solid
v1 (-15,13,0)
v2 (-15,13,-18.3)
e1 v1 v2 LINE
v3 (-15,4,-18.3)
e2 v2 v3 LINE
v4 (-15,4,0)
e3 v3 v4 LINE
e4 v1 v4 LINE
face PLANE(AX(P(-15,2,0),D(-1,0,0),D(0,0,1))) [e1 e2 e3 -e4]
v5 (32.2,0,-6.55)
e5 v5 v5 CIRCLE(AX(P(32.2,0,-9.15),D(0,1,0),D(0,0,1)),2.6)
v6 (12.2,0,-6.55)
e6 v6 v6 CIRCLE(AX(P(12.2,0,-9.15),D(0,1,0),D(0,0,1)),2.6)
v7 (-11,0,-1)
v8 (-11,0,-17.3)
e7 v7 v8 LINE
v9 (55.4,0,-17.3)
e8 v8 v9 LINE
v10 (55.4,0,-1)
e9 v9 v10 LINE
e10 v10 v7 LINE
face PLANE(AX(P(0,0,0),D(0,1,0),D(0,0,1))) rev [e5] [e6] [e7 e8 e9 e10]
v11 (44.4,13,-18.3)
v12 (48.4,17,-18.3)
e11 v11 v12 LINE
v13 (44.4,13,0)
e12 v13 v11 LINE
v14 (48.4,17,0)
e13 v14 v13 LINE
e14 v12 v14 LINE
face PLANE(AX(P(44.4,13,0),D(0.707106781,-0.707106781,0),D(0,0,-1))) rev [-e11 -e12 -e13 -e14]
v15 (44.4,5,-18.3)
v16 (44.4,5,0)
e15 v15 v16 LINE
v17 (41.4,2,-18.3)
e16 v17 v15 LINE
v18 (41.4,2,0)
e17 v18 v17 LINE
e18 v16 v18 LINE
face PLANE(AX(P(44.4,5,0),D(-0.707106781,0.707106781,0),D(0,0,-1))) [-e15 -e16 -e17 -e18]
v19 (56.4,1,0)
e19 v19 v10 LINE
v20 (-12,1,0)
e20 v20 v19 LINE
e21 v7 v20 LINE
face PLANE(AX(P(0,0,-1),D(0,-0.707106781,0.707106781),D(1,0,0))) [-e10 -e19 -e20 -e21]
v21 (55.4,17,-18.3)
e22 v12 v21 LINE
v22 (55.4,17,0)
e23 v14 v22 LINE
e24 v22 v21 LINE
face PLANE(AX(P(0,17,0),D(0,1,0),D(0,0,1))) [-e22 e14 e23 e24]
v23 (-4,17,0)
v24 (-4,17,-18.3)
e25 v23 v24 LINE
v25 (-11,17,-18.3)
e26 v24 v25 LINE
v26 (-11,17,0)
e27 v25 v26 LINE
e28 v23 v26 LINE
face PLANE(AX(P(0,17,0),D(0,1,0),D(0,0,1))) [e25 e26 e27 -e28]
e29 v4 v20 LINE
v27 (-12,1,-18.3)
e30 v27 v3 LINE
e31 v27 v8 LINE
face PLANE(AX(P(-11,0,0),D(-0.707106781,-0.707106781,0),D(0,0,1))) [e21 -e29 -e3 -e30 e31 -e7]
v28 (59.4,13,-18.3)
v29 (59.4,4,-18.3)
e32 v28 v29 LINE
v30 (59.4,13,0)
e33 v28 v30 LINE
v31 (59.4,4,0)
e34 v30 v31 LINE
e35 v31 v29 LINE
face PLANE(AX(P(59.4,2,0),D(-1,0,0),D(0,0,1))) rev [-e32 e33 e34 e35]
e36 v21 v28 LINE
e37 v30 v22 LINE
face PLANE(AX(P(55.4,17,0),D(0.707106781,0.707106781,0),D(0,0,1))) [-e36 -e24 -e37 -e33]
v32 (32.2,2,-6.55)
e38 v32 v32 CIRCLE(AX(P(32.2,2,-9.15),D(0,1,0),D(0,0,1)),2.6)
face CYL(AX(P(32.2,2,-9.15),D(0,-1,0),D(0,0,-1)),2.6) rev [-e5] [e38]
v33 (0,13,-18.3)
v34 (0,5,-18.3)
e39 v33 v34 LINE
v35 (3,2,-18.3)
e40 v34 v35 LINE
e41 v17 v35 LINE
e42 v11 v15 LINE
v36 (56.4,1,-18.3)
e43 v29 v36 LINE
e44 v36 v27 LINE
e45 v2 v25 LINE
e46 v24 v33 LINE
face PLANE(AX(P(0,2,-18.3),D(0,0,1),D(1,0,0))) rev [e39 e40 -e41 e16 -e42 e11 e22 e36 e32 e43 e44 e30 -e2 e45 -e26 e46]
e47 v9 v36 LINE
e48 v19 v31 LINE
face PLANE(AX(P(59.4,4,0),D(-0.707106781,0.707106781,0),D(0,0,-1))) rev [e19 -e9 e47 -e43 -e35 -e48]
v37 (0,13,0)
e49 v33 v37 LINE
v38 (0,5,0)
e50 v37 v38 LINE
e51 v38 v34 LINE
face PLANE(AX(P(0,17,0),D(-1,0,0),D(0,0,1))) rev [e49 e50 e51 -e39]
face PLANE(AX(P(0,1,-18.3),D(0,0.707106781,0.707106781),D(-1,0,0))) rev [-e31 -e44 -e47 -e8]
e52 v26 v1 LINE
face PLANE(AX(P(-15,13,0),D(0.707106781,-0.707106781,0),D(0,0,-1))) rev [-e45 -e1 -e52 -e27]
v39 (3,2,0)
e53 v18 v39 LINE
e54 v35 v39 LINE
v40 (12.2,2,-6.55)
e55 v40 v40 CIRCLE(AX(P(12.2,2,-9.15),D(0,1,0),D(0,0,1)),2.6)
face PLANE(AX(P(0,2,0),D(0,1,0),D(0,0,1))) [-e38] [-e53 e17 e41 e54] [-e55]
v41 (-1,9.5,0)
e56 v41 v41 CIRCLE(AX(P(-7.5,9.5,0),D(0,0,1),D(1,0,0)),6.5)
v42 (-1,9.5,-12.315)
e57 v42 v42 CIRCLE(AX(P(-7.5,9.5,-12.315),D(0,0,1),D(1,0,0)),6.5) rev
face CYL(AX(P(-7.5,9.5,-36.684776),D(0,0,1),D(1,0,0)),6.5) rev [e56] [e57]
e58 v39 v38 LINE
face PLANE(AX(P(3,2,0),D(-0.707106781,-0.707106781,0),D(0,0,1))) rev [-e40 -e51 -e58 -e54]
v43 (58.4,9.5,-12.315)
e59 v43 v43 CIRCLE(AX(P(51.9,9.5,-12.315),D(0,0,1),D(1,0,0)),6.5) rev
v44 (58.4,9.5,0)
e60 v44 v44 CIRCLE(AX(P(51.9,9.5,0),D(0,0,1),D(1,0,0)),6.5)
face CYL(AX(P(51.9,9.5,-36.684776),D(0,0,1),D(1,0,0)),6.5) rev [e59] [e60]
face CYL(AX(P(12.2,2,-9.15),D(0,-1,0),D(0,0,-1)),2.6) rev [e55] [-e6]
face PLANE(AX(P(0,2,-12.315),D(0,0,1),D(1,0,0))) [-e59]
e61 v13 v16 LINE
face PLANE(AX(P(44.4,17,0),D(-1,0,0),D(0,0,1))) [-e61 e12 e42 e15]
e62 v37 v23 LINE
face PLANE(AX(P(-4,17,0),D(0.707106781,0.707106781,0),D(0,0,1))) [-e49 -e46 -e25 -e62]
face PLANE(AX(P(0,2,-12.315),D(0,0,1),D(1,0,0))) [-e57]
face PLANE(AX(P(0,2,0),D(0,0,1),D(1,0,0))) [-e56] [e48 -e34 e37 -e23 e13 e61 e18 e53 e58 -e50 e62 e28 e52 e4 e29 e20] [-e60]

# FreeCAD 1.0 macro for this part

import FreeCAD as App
import Part
import Sketcher

V = App.Vector


def edges_at(feature, points):
    """Names of the edges that pass closest to the given points."""
    edges = feature.Shape.Edges
    near = lambda p: min(range(len(edges)), key=lambda i: edges[i].distToShape(Part.Vertex(*p))[0])
    return sorted({f"Edge{near(p) + 1}" for p in points})

doc = App.newDocument("Part")
body = doc.addObject("PartDesign::Body", "Body")

# Sketch on XZ plane
sketch1 = doc.addObject("Sketcher::SketchObject", "Sketch")
body.addObject(sketch1)
sketch1.AttachmentSupport = (doc.XZ_Plane, [""])
sketch1.MapMode = "FlatFace"
sketch1.addGeometry(Part.LineSegment(V(-15, -18.3, 0), V(-15, 0, 0)), False)
sketch1.addGeometry(Part.LineSegment(V(-15, 0, 0), V(59.4, 0, 0)), False)
sketch1.addGeometry(Part.LineSegment(V(59.4, 0, 0), V(59.4, -18.3, 0)), False)
sketch1.addGeometry(Part.LineSegment(V(59.4, -18.3, 0), V(-15, -18.3, 0)), False)
sketch1.addGeometry(Part.Circle(V(32.2, -9.2, 0), V(0, 0, 1), 2.6), False)
sketch1.addGeometry(Part.Circle(V(12.2, -9.2, 0), V(0, 0, 1), 2.6), False)
sketch1.addConstraint(Sketcher.Constraint("Coincident", 0, 2, 1, 1))
sketch1.addConstraint(Sketcher.Constraint("Coincident", 1, 2, 2, 1))
sketch1.addConstraint(Sketcher.Constraint("Coincident", 2, 2, 3, 1))
sketch1.addConstraint(Sketcher.Constraint("Coincident", 3, 2, 0, 1))
sketch1.addConstraint(Sketcher.Constraint("Vertical", 0))
sketch1.addConstraint(Sketcher.Constraint("Horizontal", 1))
sketch1.addConstraint(Sketcher.Constraint("Vertical", 2))
sketch1.addConstraint(Sketcher.Constraint("Horizontal", 3))
sketch1.addConstraint(Sketcher.Constraint("Equal", 4, 5))
sketch1.addConstraint(Sketcher.Constraint("PointOnObject", 0, 2, -1))
sketch1.addConstraint(Sketcher.Constraint("Horizontal", 4, 3, 5, 3))
sketch1.addConstraint(Sketcher.Constraint("Diameter", 4, 5.2))
sketch1.addConstraint(Sketcher.Constraint("DistanceX", 1, 1, 1, 2, 74.4))
sketch1.addConstraint(Sketcher.Constraint("DistanceY", 0, 1, 0, 2, 18.3))
sketch1.addConstraint(Sketcher.Constraint("DistanceX", 0, 2, -1, 1, 15.0))
sketch1.addConstraint(Sketcher.Constraint("DistanceX", 5, 3, 4, 3, 20.0))
sketch1.addConstraint(Sketcher.Constraint("DistanceX", -1, 1, 4, 3, 32.2))
sketch1.addConstraint(Sketcher.Constraint("DistanceY", 4, 3, -1, 1, 9.15))
pad1 = doc.addObject("PartDesign::Pad", "Pad")
body.addObject(pad1)
pad1.Profile = sketch1
pad1.Length = 2
pad1.Reversed = True

# Sketch on XZ plane
sketch2 = doc.addObject("Sketcher::SketchObject", "Sketch001")
body.addObject(sketch2)
sketch2.AttachmentSupport = (doc.XZ_Plane, [""])
sketch2.MapMode = "FlatFace"
sketch2.addGeometry(Part.LineSegment(V(44, -18, 0), V(44, 0, 0)), False)
sketch2.addGeometry(Part.LineSegment(V(44, 0, 0), V(59, 0, 0)), False)
sketch2.addGeometry(Part.LineSegment(V(59, 0, 0), V(59, -18, 0)), False)
sketch2.addGeometry(Part.LineSegment(V(59, -18, 0), V(44, -18, 0)), False)
sketch2.addGeometry(Part.LineSegment(V(-15, -18, 0), V(-15, 0, 0)), False)
sketch2.addGeometry(Part.LineSegment(V(-15, 0, 0), V(0, 0, 0)), False)
sketch2.addGeometry(Part.LineSegment(V(0, 0, 0), V(0, -18, 0)), False)
sketch2.addGeometry(Part.LineSegment(V(0, -18, 0), V(-15, -18, 0)), False)
sketch2.addConstraint(Sketcher.Constraint("Coincident", 0, 2, 1, 1))
sketch2.addConstraint(Sketcher.Constraint("Coincident", 1, 2, 2, 1))
sketch2.addConstraint(Sketcher.Constraint("Coincident", 2, 2, 3, 1))
sketch2.addConstraint(Sketcher.Constraint("Coincident", 3, 2, 0, 1))
sketch2.addConstraint(Sketcher.Constraint("Coincident", 4, 2, 5, 1))
sketch2.addConstraint(Sketcher.Constraint("Coincident", 5, 2, 6, 1))
sketch2.addConstraint(Sketcher.Constraint("Coincident", 6, 2, 7, 1))
sketch2.addConstraint(Sketcher.Constraint("Coincident", 7, 2, 4, 1))
sketch2.addConstraint(Sketcher.Constraint("Vertical", 0))
sketch2.addConstraint(Sketcher.Constraint("Horizontal", 1))
sketch2.addConstraint(Sketcher.Constraint("Vertical", 2))
sketch2.addConstraint(Sketcher.Constraint("Horizontal", 3))
sketch2.addConstraint(Sketcher.Constraint("Vertical", 4))
sketch2.addConstraint(Sketcher.Constraint("Horizontal", 5))
sketch2.addConstraint(Sketcher.Constraint("Vertical", 6))
sketch2.addConstraint(Sketcher.Constraint("Horizontal", 7))
sketch2.addConstraint(Sketcher.Constraint("Coincident", 5, 2, -1, 1))
sketch2.addConstraint(Sketcher.Constraint("PointOnObject", 0, 2, -1))
sketch2.addConstraint(Sketcher.Constraint("Horizontal", 3, 2, 6, 2))
sketch2.addConstraint(Sketcher.Constraint("Equal", 3, 5))
sketch2.addConstraint(Sketcher.Constraint("DistanceX", 1, 1, 1, 2, 15.0))
sketch2.addConstraint(Sketcher.Constraint("DistanceY", 0, 1, 0, 2, 18.3))
sketch2.addConstraint(Sketcher.Constraint("DistanceX", -1, 1, 0, 2, 44.4))
pad2 = doc.addObject("PartDesign::Pad", "Pad001")
body.addObject(pad2)
pad2.Profile = sketch2
pad2.Length = 17
pad2.Reversed = True

# Sketch on XY plane
sketch3 = doc.addObject("Sketcher::SketchObject", "Sketch002")
body.addObject(sketch3)
sketch3.AttachmentSupport = (doc.XY_Plane, [""])
sketch3.MapMode = "FlatFace"
sketch3.addGeometry(Part.Circle(V(-8, 10, 0), V(0, 0, 1), 6), False)
sketch3.addGeometry(Part.Circle(V(52, 10, 0), V(0, 0, 1), 6), False)
sketch3.addConstraint(Sketcher.Constraint("Equal", 0, 1))
sketch3.addConstraint(Sketcher.Constraint("Horizontal", 0, 3, 1, 3))
sketch3.addConstraint(Sketcher.Constraint("Diameter", 0, 13.0))
sketch3.addConstraint(Sketcher.Constraint("DistanceX", 0, 3, -1, 1, 7.5))
sketch3.addConstraint(Sketcher.Constraint("DistanceY", -1, 1, 0, 3, 9.5))
sketch3.addConstraint(Sketcher.Constraint("DistanceX", -1, 1, 1, 3, 51.9))
pocket1 = doc.addObject("PartDesign::Pocket", "Pocket")
body.addObject(pocket1)
pocket1.Profile = sketch3
pocket1.Length = 12.315
doc.recompute()

chamfer = doc.addObject("PartDesign::Chamfer", "Chamfer")
body.addObject(chamfer)
chamfer.Base = (pocket1, edges_at(pocket1, [
    (59.4, 0, -9.15),
    (-15, 0, -9.15),
    (44.4, 17, -9.15),
    (59.4, 17, -9.15),
    (-15, 17, -9.15),
    (0, 17, -9.15),
]))
chamfer.Size = 4
doc.recompute()

chamfer2 = doc.addObject("PartDesign::Chamfer", "Chamfer001")
body.addObject(chamfer2)
chamfer2.Base = (chamfer, edges_at(chamfer, [(44.4, 2, -9.15), (0, 2, -9.15)]))
chamfer2.Size = 3
doc.recompute()

chamfer3 = doc.addObject("PartDesign::Chamfer", "Chamfer002")
body.addObject(chamfer3)
chamfer3.Base = (chamfer2, edges_at(chamfer2, [(22.2, 0, -18.3), (22.2, 0, 0)]))
chamfer3.Size = 1

doc.recompute()
